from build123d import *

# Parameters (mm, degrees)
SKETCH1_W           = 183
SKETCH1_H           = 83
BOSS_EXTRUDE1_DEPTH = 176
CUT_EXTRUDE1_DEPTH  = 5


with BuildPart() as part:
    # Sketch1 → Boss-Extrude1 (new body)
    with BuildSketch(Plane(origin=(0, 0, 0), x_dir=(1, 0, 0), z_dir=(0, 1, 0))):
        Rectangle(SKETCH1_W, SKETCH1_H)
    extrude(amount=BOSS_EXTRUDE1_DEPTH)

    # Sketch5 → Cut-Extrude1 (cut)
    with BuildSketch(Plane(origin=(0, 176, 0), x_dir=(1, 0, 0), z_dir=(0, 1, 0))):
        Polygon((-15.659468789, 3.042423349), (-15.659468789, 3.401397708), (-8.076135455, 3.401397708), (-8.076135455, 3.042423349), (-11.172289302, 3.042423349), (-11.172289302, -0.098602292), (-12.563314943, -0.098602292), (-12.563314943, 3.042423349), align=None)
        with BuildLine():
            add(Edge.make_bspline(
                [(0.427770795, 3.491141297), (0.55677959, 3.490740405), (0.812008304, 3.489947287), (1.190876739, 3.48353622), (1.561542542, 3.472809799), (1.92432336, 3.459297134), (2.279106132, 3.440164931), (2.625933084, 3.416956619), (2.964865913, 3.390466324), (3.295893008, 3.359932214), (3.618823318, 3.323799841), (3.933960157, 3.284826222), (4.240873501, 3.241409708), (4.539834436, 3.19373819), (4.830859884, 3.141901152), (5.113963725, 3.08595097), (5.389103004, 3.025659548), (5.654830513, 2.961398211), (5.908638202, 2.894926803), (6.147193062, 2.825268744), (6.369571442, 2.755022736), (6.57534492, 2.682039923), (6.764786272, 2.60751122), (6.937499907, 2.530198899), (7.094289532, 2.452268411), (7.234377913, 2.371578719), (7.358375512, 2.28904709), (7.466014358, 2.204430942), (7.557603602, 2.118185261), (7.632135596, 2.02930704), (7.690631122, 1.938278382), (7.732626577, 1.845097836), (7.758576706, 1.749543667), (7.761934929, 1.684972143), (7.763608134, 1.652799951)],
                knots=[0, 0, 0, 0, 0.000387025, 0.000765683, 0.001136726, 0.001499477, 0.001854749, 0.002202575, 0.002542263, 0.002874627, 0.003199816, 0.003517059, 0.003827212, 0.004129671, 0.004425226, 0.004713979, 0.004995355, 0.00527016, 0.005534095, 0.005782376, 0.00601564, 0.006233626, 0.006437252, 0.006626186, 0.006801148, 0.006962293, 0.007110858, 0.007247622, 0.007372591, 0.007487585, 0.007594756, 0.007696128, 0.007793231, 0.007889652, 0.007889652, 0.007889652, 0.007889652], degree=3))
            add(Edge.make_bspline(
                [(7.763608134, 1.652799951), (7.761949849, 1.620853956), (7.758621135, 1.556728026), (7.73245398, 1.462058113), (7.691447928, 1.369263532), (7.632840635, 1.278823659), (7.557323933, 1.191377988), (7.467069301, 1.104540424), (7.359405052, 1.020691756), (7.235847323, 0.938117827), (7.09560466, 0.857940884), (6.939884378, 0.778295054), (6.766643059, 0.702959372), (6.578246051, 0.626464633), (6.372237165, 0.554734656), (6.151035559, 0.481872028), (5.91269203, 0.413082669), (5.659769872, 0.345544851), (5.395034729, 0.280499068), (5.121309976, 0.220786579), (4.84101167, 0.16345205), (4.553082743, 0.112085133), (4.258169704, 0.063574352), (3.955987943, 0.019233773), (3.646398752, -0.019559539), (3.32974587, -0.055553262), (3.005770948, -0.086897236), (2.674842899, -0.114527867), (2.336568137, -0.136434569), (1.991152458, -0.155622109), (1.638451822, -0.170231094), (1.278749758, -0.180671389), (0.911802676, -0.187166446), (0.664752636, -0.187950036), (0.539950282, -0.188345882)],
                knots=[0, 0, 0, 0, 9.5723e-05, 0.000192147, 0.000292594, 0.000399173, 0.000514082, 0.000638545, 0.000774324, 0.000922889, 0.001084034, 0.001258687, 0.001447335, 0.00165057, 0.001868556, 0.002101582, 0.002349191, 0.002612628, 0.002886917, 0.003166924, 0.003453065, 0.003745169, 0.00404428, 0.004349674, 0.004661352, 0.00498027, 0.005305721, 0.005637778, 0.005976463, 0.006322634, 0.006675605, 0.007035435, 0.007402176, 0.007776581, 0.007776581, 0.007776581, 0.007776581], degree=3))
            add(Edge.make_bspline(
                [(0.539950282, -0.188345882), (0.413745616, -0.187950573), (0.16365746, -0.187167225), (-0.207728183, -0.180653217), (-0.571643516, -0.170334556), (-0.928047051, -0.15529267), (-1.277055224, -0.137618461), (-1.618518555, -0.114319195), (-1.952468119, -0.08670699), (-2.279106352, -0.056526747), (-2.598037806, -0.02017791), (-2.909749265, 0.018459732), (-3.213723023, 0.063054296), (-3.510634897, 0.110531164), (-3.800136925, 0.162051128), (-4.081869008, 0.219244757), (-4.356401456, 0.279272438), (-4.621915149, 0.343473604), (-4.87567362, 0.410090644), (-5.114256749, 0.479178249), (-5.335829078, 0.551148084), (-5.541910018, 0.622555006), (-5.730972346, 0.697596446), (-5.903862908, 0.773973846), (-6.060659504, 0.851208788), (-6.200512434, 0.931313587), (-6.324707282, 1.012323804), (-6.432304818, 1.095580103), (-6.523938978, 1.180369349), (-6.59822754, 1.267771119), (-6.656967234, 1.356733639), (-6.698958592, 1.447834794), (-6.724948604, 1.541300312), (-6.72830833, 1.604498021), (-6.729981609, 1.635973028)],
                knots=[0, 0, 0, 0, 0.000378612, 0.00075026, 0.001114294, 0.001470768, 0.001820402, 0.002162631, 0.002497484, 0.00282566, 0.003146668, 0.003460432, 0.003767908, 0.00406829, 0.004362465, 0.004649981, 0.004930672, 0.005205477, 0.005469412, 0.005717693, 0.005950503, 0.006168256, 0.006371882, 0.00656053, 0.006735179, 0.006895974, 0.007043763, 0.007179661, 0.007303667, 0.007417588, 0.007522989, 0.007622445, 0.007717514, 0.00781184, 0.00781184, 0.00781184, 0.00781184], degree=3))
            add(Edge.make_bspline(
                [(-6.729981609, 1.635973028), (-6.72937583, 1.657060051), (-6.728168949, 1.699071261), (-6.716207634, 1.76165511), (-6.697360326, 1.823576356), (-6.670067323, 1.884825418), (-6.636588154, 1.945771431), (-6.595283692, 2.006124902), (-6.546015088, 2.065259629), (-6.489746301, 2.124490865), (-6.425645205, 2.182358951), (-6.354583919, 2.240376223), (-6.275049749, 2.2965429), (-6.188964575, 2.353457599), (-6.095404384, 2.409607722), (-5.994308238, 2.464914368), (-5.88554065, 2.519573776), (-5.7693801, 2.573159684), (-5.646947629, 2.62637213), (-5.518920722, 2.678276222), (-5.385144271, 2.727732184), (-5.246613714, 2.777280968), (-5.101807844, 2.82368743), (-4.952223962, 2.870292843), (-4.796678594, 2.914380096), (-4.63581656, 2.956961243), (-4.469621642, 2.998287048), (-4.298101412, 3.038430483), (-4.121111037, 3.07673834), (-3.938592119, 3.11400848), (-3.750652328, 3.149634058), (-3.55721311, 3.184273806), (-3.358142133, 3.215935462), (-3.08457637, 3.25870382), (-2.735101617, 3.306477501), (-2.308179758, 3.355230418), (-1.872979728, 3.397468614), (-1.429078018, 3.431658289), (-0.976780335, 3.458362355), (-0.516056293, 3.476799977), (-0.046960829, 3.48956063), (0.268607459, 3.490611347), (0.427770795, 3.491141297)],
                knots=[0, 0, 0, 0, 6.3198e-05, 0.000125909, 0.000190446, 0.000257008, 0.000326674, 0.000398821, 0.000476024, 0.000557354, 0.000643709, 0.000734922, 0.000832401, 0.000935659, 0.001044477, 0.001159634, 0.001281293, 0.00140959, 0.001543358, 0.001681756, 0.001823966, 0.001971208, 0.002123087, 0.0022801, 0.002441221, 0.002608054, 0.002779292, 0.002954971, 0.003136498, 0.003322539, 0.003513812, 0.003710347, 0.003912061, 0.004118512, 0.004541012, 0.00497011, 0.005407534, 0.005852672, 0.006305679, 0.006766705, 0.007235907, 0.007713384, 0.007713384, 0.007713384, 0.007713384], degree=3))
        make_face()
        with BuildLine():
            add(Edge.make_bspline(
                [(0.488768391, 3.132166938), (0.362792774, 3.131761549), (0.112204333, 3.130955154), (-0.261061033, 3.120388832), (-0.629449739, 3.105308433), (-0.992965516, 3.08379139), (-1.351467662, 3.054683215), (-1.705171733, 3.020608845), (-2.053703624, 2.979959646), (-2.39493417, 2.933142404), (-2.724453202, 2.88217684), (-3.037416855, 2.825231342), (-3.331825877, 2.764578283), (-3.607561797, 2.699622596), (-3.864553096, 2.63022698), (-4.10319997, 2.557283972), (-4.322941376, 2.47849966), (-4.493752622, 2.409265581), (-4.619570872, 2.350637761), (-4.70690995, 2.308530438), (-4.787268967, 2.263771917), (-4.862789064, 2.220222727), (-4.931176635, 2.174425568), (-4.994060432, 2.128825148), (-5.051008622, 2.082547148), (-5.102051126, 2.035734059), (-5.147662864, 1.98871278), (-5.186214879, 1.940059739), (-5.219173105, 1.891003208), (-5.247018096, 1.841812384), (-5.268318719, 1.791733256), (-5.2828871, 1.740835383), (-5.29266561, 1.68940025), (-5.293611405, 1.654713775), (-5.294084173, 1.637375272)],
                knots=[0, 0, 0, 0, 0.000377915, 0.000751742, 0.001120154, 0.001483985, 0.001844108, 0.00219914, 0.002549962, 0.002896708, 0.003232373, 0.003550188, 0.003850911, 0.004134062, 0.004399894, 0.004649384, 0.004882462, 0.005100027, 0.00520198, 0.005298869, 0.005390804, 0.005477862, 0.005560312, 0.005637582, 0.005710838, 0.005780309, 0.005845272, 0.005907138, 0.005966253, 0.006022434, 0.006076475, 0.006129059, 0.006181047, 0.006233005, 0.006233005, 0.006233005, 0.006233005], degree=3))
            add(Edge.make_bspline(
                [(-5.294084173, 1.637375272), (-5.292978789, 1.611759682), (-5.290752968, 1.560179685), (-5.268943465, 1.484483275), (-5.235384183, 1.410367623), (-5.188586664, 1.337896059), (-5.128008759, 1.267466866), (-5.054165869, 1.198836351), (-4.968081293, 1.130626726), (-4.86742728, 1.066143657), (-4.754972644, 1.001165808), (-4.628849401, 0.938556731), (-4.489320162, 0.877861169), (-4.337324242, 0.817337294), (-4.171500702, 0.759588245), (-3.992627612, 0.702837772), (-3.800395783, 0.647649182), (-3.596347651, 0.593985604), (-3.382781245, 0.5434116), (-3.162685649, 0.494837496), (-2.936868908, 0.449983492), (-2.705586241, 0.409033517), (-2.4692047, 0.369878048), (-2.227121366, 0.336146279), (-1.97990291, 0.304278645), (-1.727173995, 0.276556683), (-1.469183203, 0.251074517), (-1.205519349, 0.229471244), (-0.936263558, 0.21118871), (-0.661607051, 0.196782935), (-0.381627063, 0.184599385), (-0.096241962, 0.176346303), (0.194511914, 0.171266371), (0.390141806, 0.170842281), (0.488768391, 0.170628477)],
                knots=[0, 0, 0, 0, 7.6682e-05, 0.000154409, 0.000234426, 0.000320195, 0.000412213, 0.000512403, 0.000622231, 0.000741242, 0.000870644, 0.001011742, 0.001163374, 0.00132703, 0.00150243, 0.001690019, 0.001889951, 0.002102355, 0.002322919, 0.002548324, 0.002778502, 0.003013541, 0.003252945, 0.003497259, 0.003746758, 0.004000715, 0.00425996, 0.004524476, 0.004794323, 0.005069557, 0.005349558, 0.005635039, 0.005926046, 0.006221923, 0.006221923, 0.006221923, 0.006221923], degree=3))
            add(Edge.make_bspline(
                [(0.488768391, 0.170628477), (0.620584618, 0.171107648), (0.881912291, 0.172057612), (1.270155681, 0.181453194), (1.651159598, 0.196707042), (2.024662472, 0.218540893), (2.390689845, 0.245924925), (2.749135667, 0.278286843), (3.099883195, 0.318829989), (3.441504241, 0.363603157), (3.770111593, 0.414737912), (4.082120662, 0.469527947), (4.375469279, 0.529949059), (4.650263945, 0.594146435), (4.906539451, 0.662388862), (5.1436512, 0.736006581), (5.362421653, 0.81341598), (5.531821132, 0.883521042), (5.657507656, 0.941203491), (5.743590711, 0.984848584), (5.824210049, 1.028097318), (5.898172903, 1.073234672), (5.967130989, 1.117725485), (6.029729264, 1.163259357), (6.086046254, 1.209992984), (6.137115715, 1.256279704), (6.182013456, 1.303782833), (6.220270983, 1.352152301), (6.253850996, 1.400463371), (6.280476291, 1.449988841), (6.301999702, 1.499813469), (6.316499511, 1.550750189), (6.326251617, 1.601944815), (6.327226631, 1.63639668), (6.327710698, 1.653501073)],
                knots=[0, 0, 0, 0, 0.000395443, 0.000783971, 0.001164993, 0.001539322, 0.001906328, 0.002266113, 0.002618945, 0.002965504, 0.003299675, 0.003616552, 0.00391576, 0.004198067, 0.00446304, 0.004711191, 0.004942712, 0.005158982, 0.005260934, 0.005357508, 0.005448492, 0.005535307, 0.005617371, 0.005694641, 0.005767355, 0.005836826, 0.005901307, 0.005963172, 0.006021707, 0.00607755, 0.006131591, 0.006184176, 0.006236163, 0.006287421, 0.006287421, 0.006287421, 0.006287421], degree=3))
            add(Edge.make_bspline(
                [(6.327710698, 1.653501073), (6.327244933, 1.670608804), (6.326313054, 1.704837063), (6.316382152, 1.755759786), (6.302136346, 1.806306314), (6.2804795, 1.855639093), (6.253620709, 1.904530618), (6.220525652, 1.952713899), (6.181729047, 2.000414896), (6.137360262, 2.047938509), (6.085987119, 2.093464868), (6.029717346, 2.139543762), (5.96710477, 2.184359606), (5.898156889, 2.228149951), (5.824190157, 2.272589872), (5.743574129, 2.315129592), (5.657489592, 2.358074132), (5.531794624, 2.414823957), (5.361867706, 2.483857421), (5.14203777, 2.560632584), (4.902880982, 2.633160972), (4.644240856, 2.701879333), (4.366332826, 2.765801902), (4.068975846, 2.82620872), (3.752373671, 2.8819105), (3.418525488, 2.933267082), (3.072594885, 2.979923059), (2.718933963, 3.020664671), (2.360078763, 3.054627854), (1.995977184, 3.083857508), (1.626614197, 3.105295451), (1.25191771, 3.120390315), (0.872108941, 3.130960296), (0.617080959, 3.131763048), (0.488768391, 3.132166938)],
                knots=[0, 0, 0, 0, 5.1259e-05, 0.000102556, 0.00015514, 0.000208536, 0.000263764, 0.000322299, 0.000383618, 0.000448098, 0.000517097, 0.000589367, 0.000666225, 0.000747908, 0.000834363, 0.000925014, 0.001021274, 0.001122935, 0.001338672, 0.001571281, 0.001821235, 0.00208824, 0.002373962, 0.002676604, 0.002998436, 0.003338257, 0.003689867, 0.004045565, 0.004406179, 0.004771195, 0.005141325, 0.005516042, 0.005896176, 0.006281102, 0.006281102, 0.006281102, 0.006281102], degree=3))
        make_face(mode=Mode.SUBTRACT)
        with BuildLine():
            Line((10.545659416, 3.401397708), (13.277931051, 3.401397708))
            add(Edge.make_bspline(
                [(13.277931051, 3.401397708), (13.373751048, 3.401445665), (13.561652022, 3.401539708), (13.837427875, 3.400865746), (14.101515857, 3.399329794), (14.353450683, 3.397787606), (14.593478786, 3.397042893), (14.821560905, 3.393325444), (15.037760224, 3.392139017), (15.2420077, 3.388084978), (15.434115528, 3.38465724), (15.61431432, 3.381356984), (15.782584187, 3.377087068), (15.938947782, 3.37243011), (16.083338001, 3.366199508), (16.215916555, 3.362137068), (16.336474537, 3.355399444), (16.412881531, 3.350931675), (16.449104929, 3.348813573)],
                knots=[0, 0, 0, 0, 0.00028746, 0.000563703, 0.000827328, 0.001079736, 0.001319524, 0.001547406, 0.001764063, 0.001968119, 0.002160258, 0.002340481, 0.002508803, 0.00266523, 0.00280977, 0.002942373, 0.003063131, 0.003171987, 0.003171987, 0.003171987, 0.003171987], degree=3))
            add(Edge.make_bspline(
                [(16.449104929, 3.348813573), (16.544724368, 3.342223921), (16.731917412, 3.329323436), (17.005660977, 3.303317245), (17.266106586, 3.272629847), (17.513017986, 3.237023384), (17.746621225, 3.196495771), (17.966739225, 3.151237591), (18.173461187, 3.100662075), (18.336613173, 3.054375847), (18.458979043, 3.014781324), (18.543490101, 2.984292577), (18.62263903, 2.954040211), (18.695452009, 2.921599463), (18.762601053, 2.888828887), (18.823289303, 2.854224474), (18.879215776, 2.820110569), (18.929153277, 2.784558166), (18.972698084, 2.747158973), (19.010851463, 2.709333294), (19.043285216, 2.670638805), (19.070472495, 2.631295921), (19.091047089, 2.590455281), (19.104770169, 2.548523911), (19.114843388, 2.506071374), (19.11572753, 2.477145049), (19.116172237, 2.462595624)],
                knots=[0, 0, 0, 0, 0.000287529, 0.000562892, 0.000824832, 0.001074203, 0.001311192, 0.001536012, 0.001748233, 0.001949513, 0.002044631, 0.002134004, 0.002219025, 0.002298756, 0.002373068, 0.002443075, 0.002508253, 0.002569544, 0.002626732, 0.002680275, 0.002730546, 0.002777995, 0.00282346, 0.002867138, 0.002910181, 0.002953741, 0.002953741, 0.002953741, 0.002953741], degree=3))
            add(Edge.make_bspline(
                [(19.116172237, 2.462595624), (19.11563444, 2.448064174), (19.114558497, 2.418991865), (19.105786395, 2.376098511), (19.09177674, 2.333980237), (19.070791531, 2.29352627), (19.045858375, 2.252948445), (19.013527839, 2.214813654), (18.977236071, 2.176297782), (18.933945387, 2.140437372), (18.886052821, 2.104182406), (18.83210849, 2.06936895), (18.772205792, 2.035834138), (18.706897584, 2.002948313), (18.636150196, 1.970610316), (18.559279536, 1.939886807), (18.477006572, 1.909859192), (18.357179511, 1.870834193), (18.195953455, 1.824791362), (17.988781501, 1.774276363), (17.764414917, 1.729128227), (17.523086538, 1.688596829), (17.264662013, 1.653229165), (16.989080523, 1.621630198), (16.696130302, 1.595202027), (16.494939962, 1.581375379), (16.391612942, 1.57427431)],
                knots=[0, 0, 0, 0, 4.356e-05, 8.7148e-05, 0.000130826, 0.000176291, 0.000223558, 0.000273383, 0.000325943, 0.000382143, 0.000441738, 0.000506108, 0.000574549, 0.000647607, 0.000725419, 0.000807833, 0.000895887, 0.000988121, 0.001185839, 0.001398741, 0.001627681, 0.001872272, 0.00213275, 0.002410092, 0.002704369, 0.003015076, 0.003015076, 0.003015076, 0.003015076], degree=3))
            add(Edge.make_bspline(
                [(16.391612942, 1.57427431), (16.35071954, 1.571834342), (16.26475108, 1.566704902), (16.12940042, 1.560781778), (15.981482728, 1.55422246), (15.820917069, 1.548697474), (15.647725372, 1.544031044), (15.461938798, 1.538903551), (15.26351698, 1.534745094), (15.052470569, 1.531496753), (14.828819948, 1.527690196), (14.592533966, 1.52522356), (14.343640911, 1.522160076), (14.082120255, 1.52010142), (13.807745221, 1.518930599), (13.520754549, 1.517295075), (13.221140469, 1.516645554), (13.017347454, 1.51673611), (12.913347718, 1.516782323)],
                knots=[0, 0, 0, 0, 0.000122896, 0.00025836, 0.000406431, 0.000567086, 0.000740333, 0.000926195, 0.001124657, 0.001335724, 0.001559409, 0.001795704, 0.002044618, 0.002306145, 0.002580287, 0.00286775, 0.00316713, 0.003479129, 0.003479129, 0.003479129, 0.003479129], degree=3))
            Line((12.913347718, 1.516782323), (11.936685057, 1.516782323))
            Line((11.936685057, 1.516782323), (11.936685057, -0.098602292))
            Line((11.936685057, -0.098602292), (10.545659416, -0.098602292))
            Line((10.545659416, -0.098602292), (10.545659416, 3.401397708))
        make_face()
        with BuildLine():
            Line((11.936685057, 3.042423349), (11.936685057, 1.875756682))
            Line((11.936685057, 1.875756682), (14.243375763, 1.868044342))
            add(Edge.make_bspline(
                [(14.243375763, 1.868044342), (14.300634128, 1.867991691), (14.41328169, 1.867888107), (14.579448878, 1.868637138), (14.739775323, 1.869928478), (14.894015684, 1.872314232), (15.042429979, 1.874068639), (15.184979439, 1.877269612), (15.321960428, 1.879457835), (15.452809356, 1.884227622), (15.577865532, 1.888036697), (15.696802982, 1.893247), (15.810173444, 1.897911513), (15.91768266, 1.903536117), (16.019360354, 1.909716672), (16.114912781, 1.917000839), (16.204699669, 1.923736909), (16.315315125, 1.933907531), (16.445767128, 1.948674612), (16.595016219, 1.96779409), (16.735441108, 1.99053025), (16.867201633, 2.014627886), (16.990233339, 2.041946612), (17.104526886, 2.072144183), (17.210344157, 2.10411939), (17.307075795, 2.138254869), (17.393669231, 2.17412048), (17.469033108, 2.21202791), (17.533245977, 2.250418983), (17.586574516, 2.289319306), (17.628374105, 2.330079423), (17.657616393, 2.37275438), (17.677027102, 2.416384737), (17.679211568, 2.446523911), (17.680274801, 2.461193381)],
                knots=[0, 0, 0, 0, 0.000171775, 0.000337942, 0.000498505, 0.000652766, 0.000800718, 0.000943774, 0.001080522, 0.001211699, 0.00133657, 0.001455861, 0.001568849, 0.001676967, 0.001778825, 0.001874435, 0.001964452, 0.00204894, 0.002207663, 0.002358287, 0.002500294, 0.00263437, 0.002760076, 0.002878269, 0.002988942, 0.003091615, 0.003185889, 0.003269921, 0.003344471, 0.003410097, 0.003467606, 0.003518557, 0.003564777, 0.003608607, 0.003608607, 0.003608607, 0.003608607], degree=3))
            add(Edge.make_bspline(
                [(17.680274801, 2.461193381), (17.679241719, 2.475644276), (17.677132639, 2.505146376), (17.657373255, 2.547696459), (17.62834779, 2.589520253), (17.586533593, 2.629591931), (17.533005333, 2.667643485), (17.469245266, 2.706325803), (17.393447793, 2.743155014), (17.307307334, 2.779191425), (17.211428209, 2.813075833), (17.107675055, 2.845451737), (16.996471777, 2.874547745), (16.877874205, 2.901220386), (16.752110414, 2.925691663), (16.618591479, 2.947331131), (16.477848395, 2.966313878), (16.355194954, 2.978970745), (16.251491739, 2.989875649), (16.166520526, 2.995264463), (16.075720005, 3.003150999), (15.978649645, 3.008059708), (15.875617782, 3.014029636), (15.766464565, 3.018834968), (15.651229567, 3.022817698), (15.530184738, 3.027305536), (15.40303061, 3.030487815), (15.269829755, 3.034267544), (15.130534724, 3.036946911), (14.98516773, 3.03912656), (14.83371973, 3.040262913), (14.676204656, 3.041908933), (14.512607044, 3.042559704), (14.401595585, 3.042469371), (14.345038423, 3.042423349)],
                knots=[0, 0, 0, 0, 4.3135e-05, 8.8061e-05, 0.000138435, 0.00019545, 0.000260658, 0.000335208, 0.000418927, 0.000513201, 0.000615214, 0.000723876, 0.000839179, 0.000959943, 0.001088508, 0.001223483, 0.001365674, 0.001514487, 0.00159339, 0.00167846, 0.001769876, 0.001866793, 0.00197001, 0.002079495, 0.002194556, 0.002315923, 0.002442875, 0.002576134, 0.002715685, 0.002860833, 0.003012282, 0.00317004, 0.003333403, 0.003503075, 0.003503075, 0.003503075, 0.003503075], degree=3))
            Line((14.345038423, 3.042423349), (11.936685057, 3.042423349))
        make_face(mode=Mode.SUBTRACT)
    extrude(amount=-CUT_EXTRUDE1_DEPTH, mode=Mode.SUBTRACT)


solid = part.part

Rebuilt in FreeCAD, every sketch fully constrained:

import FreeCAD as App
import Part
import Sketcher
from FreeCAD import Vector
Q = App.Units.Quantity


def add_polygon(sketch, points):
    """Adds a closed chain of lines whose ends are joined by coincident constraints."""
    first, n = sketch.GeometryCount, len(points)
    for a, b in zip(points, points[1:] + points[:1]):
        sketch.addGeometry(Part.LineSegment(App.Vector(*a, 0), App.Vector(*b, 0)), False)
    for i in range(n):
        sketch.addConstraint(Sketcher.Constraint("Coincident", first + i, 2, first + (i + 1) % n, 1))

doc = App.newDocument("Part")
body = doc.addObject("PartDesign::Body", "Body")

# Sketch on XZ plane
sketch1 = doc.addObject("Sketcher::SketchObject", "Sketch")
body.addObject(sketch1)
sketch1.AttachmentSupport = (doc.XZ_Plane, [""])
sketch1.MapMode = "FlatFace"
add_polygon(sketch1, [(-92, -42), (-92, 42), (92, 42), (92, -42)])  # lines 0-3
sketch1.addConstraint([
    Sketcher.Constraint("Vertical", 0),
    Sketcher.Constraint("Horizontal", 1),
    Sketcher.Constraint("Vertical", 2),
    Sketcher.Constraint("Horizontal", 3),
    Sketcher.Constraint("Symmetric", 0, 2, 2, 2, -1, 1),
    Sketcher.Constraint("DistanceX", 1, 1, 1, 2, Q("183 mm")),
    Sketcher.Constraint("DistanceY", 0, 1, 0, 2, Q("83 mm")),
])
pad1 = doc.addObject("PartDesign::Pad", "Pad")
body.addObject(pad1)
pad1.Profile = sketch1
pad1.Length = 176
pad1.Reversed = True

# Sketch on XZ plane
sketch2 = doc.addObject("Sketcher::SketchObject", "Sketch001")
body.addObject(sketch2)
sketch2.AttachmentSupport = (doc.XZ_Plane, [""])
sketch2.MapMode = "FlatFace"
sketch2.AttachmentOffset = App.Placement(Vector(0, 0, -176), App.Rotation())
add_polygon(sketch2, [(-15.659469, -3.401398), (-15.659469, -3.042423), (-12.563315, -3.042423), (-12.563315, 0.098602), (-11.172289, 0.098602), (-11.172289, -3.042423), (-8.076135, -3.042423), (-8.076135, -3.401398)])  # lines 0-7
sketch2.addGeometry(Part.BSplineCurve([Vector(0.427771, -3.491141, 0), Vector(0.55678, -3.49074, 0), Vector(0.812008, -3.489947, 0), Vector(1.190877, -3.483536, 0), Vector(1.561543, -3.47281, 0), Vector(1.924323, -3.459297, 0), Vector(2.279106, -3.440165, 0), Vector(2.625933, -3.416957, 0), Vector(2.964866, -3.390466, 0), Vector(3.295893, -3.359932, 0), Vector(3.618823, -3.3238, 0), Vector(3.93396, -3.284826, 0), Vector(4.240874, -3.24141, 0), Vector(4.539834, -3.193738, 0), Vector(4.83086, -3.141901, 0), Vector(5.113964, -3.085951, 0), Vector(5.389103, -3.02566, 0), Vector(5.654831, -2.961398, 0), Vector(5.908638, -2.894927, 0), Vector(6.147193, -2.825269, 0), Vector(6.369571, -2.755023, 0), Vector(6.575345, -2.68204, 0), Vector(6.764786, -2.607511, 0), Vector(6.9375, -2.530199, 0), Vector(7.09429, -2.452268, 0), Vector(7.234378, -2.371579, 0), Vector(7.358376, -2.289047, 0), Vector(7.466014, -2.204431, 0), Vector(7.557604, -2.118185, 0), Vector(7.632136, -2.029307, 0), Vector(7.690631, -1.938278, 0), Vector(7.732627, -1.845098, 0), Vector(7.758577, -1.749544, 0), Vector(7.761935, -1.684972, 0), Vector(7.763608, -1.6528, 0)], [4, 1, 1, 1, 1, 1, 1, 1, 1, 1, 1, 1, 1, 1, 1, 1, 1, 1, 1, 1, 1, 1, 1, 1, 1, 1, 1, 1, 1, 1, 1, 1, 4], [0, 0.000387025, 0.000765683, 0.001136726, 0.001499477, 0.001854749, 0.002202575, 0.002542263, 0.002874627, 0.003199816, 0.003517059, 0.003827212, 0.004129671, 0.004425226, 0.004713979, 0.004995355, 0.00527016, 0.005534095, 0.005782376, 0.00601564, 0.006233626, 0.006437252, 0.006626186, 0.006801148, 0.006962293, 0.007110858, 0.007247622, 0.007372591, 0.007487585, 0.007594756, 0.007696128, 0.007793231, 0.007889652], False, 3, [1, 1, 1, 1, 1, 1, 1, 1, 1, 1, 1, 1, 1, 1, 1, 1, 1, 1, 1, 1, 1, 1, 1, 1, 1, 1, 1, 1, 1, 1, 1, 1, 1, 1, 1], False), False)  # 8
sketch2.addGeometry(Part.BSplineCurve([Vector(-6.729982, -1.635973, 0), Vector(-6.729376, -1.65706, 0), Vector(-6.728169, -1.699071, 0), Vector(-6.716208, -1.761655, 0), Vector(-6.69736, -1.823576, 0), Vector(-6.670067, -1.884825, 0), Vector(-6.636588, -1.945771, 0), Vector(-6.595284, -2.006125, 0), Vector(-6.546015, -2.06526, 0), Vector(-6.489746, -2.124491, 0), Vector(-6.425645, -2.182359, 0), Vector(-6.354584, -2.240376, 0), Vector(-6.27505, -2.296543, 0), Vector(-6.188965, -2.353458, 0), Vector(-6.095404, -2.409608, 0), Vector(-5.994308, -2.464914, 0), Vector(-5.885541, -2.519574, 0), Vector(-5.76938, -2.57316, 0), Vector(-5.646948, -2.626372, 0), Vector(-5.518921, -2.678276, 0), Vector(-5.385144, -2.727732, 0), Vector(-5.246614, -2.777281, 0), Vector(-5.101808, -2.823687, 0), Vector(-4.952224, -2.870293, 0), Vector(-4.796679, -2.91438, 0), Vector(-4.635817, -2.956961, 0), Vector(-4.469622, -2.998287, 0), Vector(-4.298101, -3.03843, 0), Vector(-4.121111, -3.076738, 0), Vector(-3.938592, -3.114008, 0), Vector(-3.750652, -3.149634, 0), Vector(-3.557213, -3.184274, 0), Vector(-3.358142, -3.215935, 0), Vector(-3.084576, -3.258704, 0), Vector(-2.735102, -3.306478, 0), Vector(-2.30818, -3.35523, 0), Vector(-1.87298, -3.397469, 0), Vector(-1.429078, -3.431658, 0), Vector(-0.97678, -3.458362, 0), Vector(-0.516056, -3.4768, 0), Vector(-0.046961, -3.489561, 0), Vector(0.268607, -3.490611, 0), Vector(0.427771, -3.491141, 0)], [4, 1, 1, 1, 1, 1, 1, 1, 1, 1, 1, 1, 1, 1, 1, 1, 1, 1, 1, 1, 1, 1, 1, 1, 1, 1, 1, 1, 1, 1, 1, 1, 1, 1, 1, 1, 1, 1, 1, 1, 4], [0, 0.000063198, 0.000125909, 0.000190446, 0.000257008, 0.000326674, 0.000398821, 0.000476024, 0.000557354, 0.000643709, 0.000734922, 0.000832401, 0.000935659, 0.001044477, 0.001159634, 0.001281293, 0.00140959, 0.001543358, 0.001681756, 0.001823966, 0.001971208, 0.002123087, 0.0022801, 0.002441221, 0.002608054, 0.002779292, 0.002954971, 0.003136498, 0.003322539, 0.003513812, 0.003710347, 0.003912061, 0.004118512, 0.004541012, 0.00497011, 0.005407534, 0.005852672, 0.006305679, 0.006766705, 0.007235907, 0.007713384], False, 3, [1, 1, 1, 1, 1, 1, 1, 1, 1, 1, 1, 1, 1, 1, 1, 1, 1, 1, 1, 1, 1, 1, 1, 1, 1, 1, 1, 1, 1, 1, 1, 1, 1, 1, 1, 1, 1, 1, 1, 1, 1, 1, 1], False), False)  # 9
sketch2.addGeometry(Part.BSplineCurve([Vector(0.53995, 0.188346, 0), Vector(0.413746, 0.187951, 0), Vector(0.163657, 0.187167, 0), Vector(-0.207728, 0.180653, 0), Vector(-0.571644, 0.170335, 0), Vector(-0.928047, 0.155293, 0), Vector(-1.277055, 0.137618, 0), Vector(-1.618519, 0.114319, 0), Vector(-1.952468, 0.086707, 0), Vector(-2.279106, 0.056527, 0), Vector(-2.598038, 0.020178, 0), Vector(-2.909749, -0.01846, 0), Vector(-3.213723, -0.063054, 0), Vector(-3.510635, -0.110531, 0), Vector(-3.800137, -0.162051, 0), Vector(-4.081869, -0.219245, 0), Vector(-4.356401, -0.279272, 0), Vector(-4.621915, -0.343474, 0), Vector(-4.875674, -0.410091, 0), Vector(-5.114257, -0.479178, 0), Vector(-5.335829, -0.551148, 0), Vector(-5.54191, -0.622555, 0), Vector(-5.730972, -0.697596, 0), Vector(-5.903863, -0.773974, 0), Vector(-6.06066, -0.851209, 0), Vector(-6.200512, -0.931314, 0), Vector(-6.324707, -1.012324, 0), Vector(-6.432305, -1.09558, 0), Vector(-6.523939, -1.180369, 0), Vector(-6.598228, -1.267771, 0), Vector(-6.656967, -1.356734, 0), Vector(-6.698959, -1.447835, 0), Vector(-6.724949, -1.5413, 0), Vector(-6.728308, -1.604498, 0), Vector(-6.729982, -1.635973, 0)], [4, 1, 1, 1, 1, 1, 1, 1, 1, 1, 1, 1, 1, 1, 1, 1, 1, 1, 1, 1, 1, 1, 1, 1, 1, 1, 1, 1, 1, 1, 1, 1, 4], [0, 0.000378612, 0.00075026, 0.001114294, 0.001470768, 0.001820402, 0.002162631, 0.002497484, 0.00282566, 0.003146668, 0.003460432, 0.003767908, 0.00406829, 0.004362465, 0.004649981, 0.004930672, 0.005205477, 0.005469412, 0.005717693, 0.005950503, 0.006168256, 0.006371882, 0.00656053, 0.006735179, 0.006895974, 0.007043763, 0.007179661, 0.007303667, 0.007417588, 0.007522989, 0.007622445, 0.007717514, 0.00781184], False, 3, [1, 1, 1, 1, 1, 1, 1, 1, 1, 1, 1, 1, 1, 1, 1, 1, 1, 1, 1, 1, 1, 1, 1, 1, 1, 1, 1, 1, 1, 1, 1, 1, 1, 1, 1], False), False)  # 10
sketch2.addGeometry(Part.BSplineCurve([Vector(7.763608, -1.6528, 0), Vector(7.76195, -1.620854, 0), Vector(7.758621, -1.556728, 0), Vector(7.732454, -1.462058, 0), Vector(7.691448, -1.369264, 0), Vector(7.632841, -1.278824, 0), Vector(7.557324, -1.191378, 0), Vector(7.467069, -1.10454, 0), Vector(7.359405, -1.020692, 0), Vector(7.235847, -0.938118, 0), Vector(7.095605, -0.857941, 0), Vector(6.939884, -0.778295, 0), Vector(6.766643, -0.702959, 0), Vector(6.578246, -0.626465, 0), Vector(6.372237, -0.554735, 0), Vector(6.151036, -0.481872, 0), Vector(5.912692, -0.413083, 0), Vector(5.65977, -0.345545, 0), Vector(5.395035, -0.280499, 0), Vector(5.12131, -0.220787, 0), Vector(4.841012, -0.163452, 0), Vector(4.553083, -0.112085, 0), Vector(4.25817, -0.063574, 0), Vector(3.955988, -0.019234, 0), Vector(3.646399, 0.01956, 0), Vector(3.329746, 0.055553, 0), Vector(3.005771, 0.086897, 0), Vector(2.674843, 0.114528, 0), Vector(2.336568, 0.136435, 0), Vector(1.991152, 0.155622, 0), Vector(1.638452, 0.170231, 0), Vector(1.27875, 0.180671, 0), Vector(0.911803, 0.187166, 0), Vector(0.664753, 0.18795, 0), Vector(0.53995, 0.188346, 0)], [4, 1, 1, 1, 1, 1, 1, 1, 1, 1, 1, 1, 1, 1, 1, 1, 1, 1, 1, 1, 1, 1, 1, 1, 1, 1, 1, 1, 1, 1, 1, 1, 4], [0, 0.000095723, 0.000192147, 0.000292594, 0.000399173, 0.000514082, 0.000638545, 0.000774324, 0.000922889, 0.001084034, 0.001258687, 0.001447335, 0.00165057, 0.001868556, 0.002101582, 0.002349191, 0.002612628, 0.002886917, 0.003166924, 0.003453065, 0.003745169, 0.00404428, 0.004349674, 0.004661352, 0.00498027, 0.005305721, 0.005637778, 0.005976463, 0.006322634, 0.006675605, 0.007035435, 0.007402176, 0.007776581], False, 3, [1, 1, 1, 1, 1, 1, 1, 1, 1, 1, 1, 1, 1, 1, 1, 1, 1, 1, 1, 1, 1, 1, 1, 1, 1, 1, 1, 1, 1, 1, 1, 1, 1, 1, 1], False), False)  # 11
sketch2.addGeometry(Part.BSplineCurve([Vector(6.327711, -1.653501, 0), Vector(6.327245, -1.670609, 0), Vector(6.326313, -1.704837, 0), Vector(6.316382, -1.75576, 0), Vector(6.302136, -1.806306, 0), Vector(6.28048, -1.855639, 0), Vector(6.253621, -1.904531, 0), Vector(6.220526, -1.952714, 0), Vector(6.181729, -2.000415, 0), Vector(6.13736, -2.047939, 0), Vector(6.085987, -2.093465, 0), Vector(6.029717, -2.139544, 0), Vector(5.967105, -2.18436, 0), Vector(5.898157, -2.22815, 0), Vector(5.82419, -2.27259, 0), Vector(5.743574, -2.31513, 0), Vector(5.65749, -2.358074, 0), Vector(5.531795, -2.414824, 0), Vector(5.361868, -2.483857, 0), Vector(5.142038, -2.560633, 0), Vector(4.902881, -2.633161, 0), Vector(4.644241, -2.701879, 0), Vector(4.366333, -2.765802, 0), Vector(4.068976, -2.826209, 0), Vector(3.752374, -2.881911, 0), Vector(3.418525, -2.933267, 0), Vector(3.072595, -2.979923, 0), Vector(2.718934, -3.020665, 0), Vector(2.360079, -3.054628, 0), Vector(1.995977, -3.083858, 0), Vector(1.626614, -3.105295, 0), Vector(1.251918, -3.12039, 0), Vector(0.872109, -3.13096, 0), Vector(0.617081, -3.131763, 0), Vector(0.488768, -3.132167, 0)], [4, 1, 1, 1, 1, 1, 1, 1, 1, 1, 1, 1, 1, 1, 1, 1, 1, 1, 1, 1, 1, 1, 1, 1, 1, 1, 1, 1, 1, 1, 1, 1, 4], [0, 0.000051259, 0.000102556, 0.00015514, 0.000208536, 0.000263764, 0.000322299, 0.000383618, 0.000448098, 0.000517097, 0.000589367, 0.000666225, 0.000747908, 0.000834363, 0.000925014, 0.001021274, 0.001122935, 0.001338672, 0.001571281, 0.001821235, 0.00208824, 0.002373962, 0.002676604, 0.002998436, 0.003338257, 0.003689867, 0.004045565, 0.004406179, 0.004771195, 0.005141325, 0.005516042, 0.005896176, 0.006281102], False, 3, [1, 1, 1, 1, 1, 1, 1, 1, 1, 1, 1, 1, 1, 1, 1, 1, 1, 1, 1, 1, 1, 1, 1, 1, 1, 1, 1, 1, 1, 1, 1, 1, 1, 1, 1], False), False)  # 12
sketch2.addGeometry(Part.BSplineCurve([Vector(0.488768, -0.170628, 0), Vector(0.620585, -0.171108, 0), Vector(0.881912, -0.172058, 0), Vector(1.270156, -0.181453, 0), Vector(1.65116, -0.196707, 0), Vector(2.024662, -0.218541, 0), Vector(2.39069, -0.245925, 0), Vector(2.749136, -0.278287, 0), Vector(3.099883, -0.31883, 0), Vector(3.441504, -0.363603, 0), Vector(3.770112, -0.414738, 0), Vector(4.082121, -0.469528, 0), Vector(4.375469, -0.529949, 0), Vector(4.650264, -0.594146, 0), Vector(4.906539, -0.662389, 0), Vector(5.143651, -0.736007, 0), Vector(5.362422, -0.813416, 0), Vector(5.531821, -0.883521, 0), Vector(5.657508, -0.941203, 0), Vector(5.743591, -0.984849, 0), Vector(5.82421, -1.028097, 0), Vector(5.898173, -1.073235, 0), Vector(5.967131, -1.117725, 0), Vector(6.029729, -1.163259, 0), Vector(6.086046, -1.209993, 0), Vector(6.137116, -1.25628, 0), Vector(6.182013, -1.303783, 0), Vector(6.220271, -1.352152, 0), Vector(6.253851, -1.400463, 0), Vector(6.280476, -1.449989, 0), Vector(6.302, -1.499813, 0), Vector(6.3165, -1.55075, 0), Vector(6.326252, -1.601945, 0), Vector(6.327227, -1.636397, 0), Vector(6.327711, -1.653501, 0)], [4, 1, 1, 1, 1, 1, 1, 1, 1, 1, 1, 1, 1, 1, 1, 1, 1, 1, 1, 1, 1, 1, 1, 1, 1, 1, 1, 1, 1, 1, 1, 1, 4], [0, 0.000395443, 0.000783971, 0.001164993, 0.001539322, 0.001906328, 0.002266113, 0.002618945, 0.002965504, 0.003299675, 0.003616552, 0.00391576, 0.004198067, 0.00446304, 0.004711191, 0.004942712, 0.005158982, 0.005260934, 0.005357508, 0.005448492, 0.005535307, 0.005617371, 0.005694641, 0.005767355, 0.005836826, 0.005901307, 0.005963172, 0.006021707, 0.00607755, 0.006131591, 0.006184176, 0.006236163, 0.006287421], False, 3, [1, 1, 1, 1, 1, 1, 1, 1, 1, 1, 1, 1, 1, 1, 1, 1, 1, 1, 1, 1, 1, 1, 1, 1, 1, 1, 1, 1, 1, 1, 1, 1, 1, 1, 1], False), False)  # 13
sketch2.addGeometry(Part.BSplineCurve([Vector(-5.294084, -1.637375, 0), Vector(-5.292979, -1.61176, 0), Vector(-5.290753, -1.56018, 0), Vector(-5.268943, -1.484483, 0), Vector(-5.235384, -1.410368, 0), Vector(-5.188587, -1.337896, 0), Vector(-5.128009, -1.267467, 0), Vector(-5.054166, -1.198836, 0), Vector(-4.968081, -1.130627, 0), Vector(-4.867427, -1.066144, 0), Vector(-4.754973, -1.001166, 0), Vector(-4.628849, -0.938557, 0), Vector(-4.48932, -0.877861, 0), Vector(-4.337324, -0.817337, 0), Vector(-4.171501, -0.759588, 0), Vector(-3.992628, -0.702838, 0), Vector(-3.800396, -0.647649, 0), Vector(-3.596348, -0.593986, 0), Vector(-3.382781, -0.543412, 0), Vector(-3.162686, -0.494837, 0), Vector(-2.936869, -0.449983, 0), Vector(-2.705586, -0.409034, 0), Vector(-2.469205, -0.369878, 0), Vector(-2.227121, -0.336146, 0), Vector(-1.979903, -0.304279, 0), Vector(-1.727174, -0.276557, 0), Vector(-1.469183, -0.251075, 0), Vector(-1.205519, -0.229471, 0), Vector(-0.936264, -0.211189, 0), Vector(-0.661607, -0.196783, 0), Vector(-0.381627, -0.184599, 0), Vector(-0.096242, -0.176346, 0), Vector(0.194512, -0.171266, 0), Vector(0.390142, -0.170842, 0), Vector(0.488768, -0.170628, 0)], [4, 1, 1, 1, 1, 1, 1, 1, 1, 1, 1, 1, 1, 1, 1, 1, 1, 1, 1, 1, 1, 1, 1, 1, 1, 1, 1, 1, 1, 1, 1, 1, 4], [0, 0.000076682, 0.000154409, 0.000234426, 0.000320195, 0.000412213, 0.000512403, 0.000622231, 0.000741242, 0.000870644, 0.001011742, 0.001163374, 0.00132703, 0.00150243, 0.001690019, 0.001889951, 0.002102355, 0.002322919, 0.002548324, 0.002778502, 0.003013541, 0.003252945, 0.003497259, 0.003746758, 0.004000715, 0.00425996, 0.004524476, 0.004794323, 0.005069557, 0.005349558, 0.005635039, 0.005926046, 0.006221923], False, 3, [1, 1, 1, 1, 1, 1, 1, 1, 1, 1, 1, 1, 1, 1, 1, 1, 1, 1, 1, 1, 1, 1, 1, 1, 1, 1, 1, 1, 1, 1, 1, 1, 1, 1, 1], False), False)  # 14
sketch2.addGeometry(Part.BSplineCurve([Vector(0.488768, -3.132167, 0), Vector(0.362793, -3.131762, 0), Vector(0.112204, -3.130955, 0), Vector(-0.261061, -3.120389, 0), Vector(-0.62945, -3.105308, 0), Vector(-0.992966, -3.083791, 0), Vector(-1.351468, -3.054683, 0), Vector(-1.705172, -3.020609, 0), Vector(-2.053704, -2.97996, 0), Vector(-2.394934, -2.933142, 0), Vector(-2.724453, -2.882177, 0), Vector(-3.037417, -2.825231, 0), Vector(-3.331826, -2.764578, 0), Vector(-3.607562, -2.699623, 0), Vector(-3.864553, -2.630227, 0), Vector(-4.1032, -2.557284, 0), Vector(-4.322941, -2.4785, 0), Vector(-4.493753, -2.409266, 0), Vector(-4.619571, -2.350638, 0), Vector(-4.70691, -2.30853, 0), Vector(-4.787269, -2.263772, 0), Vector(-4.862789, -2.220223, 0), Vector(-4.931177, -2.174426, 0), Vector(-4.99406, -2.128825, 0), Vector(-5.051009, -2.082547, 0), Vector(-5.102051, -2.035734, 0), Vector(-5.147663, -1.988713, 0), Vector(-5.186215, -1.94006, 0), Vector(-5.219173, -1.891003, 0), Vector(-5.247018, -1.841812, 0), Vector(-5.268319, -1.791733, 0), Vector(-5.282887, -1.740835, 0), Vector(-5.292666, -1.6894, 0), Vector(-5.293611, -1.654714, 0), Vector(-5.294084, -1.637375, 0)], [4, 1, 1, 1, 1, 1, 1, 1, 1, 1, 1, 1, 1, 1, 1, 1, 1, 1, 1, 1, 1, 1, 1, 1, 1, 1, 1, 1, 1, 1, 1, 1, 4], [0, 0.000377915, 0.000751742, 0.001120154, 0.001483985, 0.001844108, 0.00219914, 0.002549962, 0.002896708, 0.003232373, 0.003550188, 0.003850911, 0.004134062, 0.004399894, 0.004649384, 0.004882462, 0.005100027, 0.00520198, 0.005298869, 0.005390804, 0.005477862, 0.005560312, 0.005637582, 0.005710838, 0.005780309, 0.005845272, 0.005907138, 0.005966253, 0.006022434, 0.006076475, 0.006129059, 0.006181047, 0.006233005], False, 3, [1, 1, 1, 1, 1, 1, 1, 1, 1, 1, 1, 1, 1, 1, 1, 1, 1, 1, 1, 1, 1, 1, 1, 1, 1, 1, 1, 1, 1, 1, 1, 1, 1, 1, 1], False), False)  # 15
sketch2.addGeometry(Part.LineSegment(Vector(13.277931, -3.401398, 0), Vector(10.545659, -3.401398, 0)), False)  # 16
sketch2.addGeometry(Part.LineSegment(Vector(10.545659, -3.401398, 0), Vector(10.545659, 0.098602, 0)), False)  # 17
sketch2.addGeometry(Part.LineSegment(Vector(10.545659, 0.098602, 0), Vector(11.936685, 0.098602, 0)), False)  # 18
sketch2.addGeometry(Part.LineSegment(Vector(11.936685, 0.098602, 0), Vector(11.936685, -1.516782, 0)), False)  # 19
sketch2.addGeometry(Part.LineSegment(Vector(11.936685, -1.516782, 0), Vector(12.913348, -1.516782, 0)), False)  # 20
sketch2.addGeometry(Part.BSplineCurve([Vector(16.391613, -1.574274, 0), Vector(16.35072, -1.571834, 0), Vector(16.264751, -1.566705, 0), Vector(16.1294, -1.560782, 0), Vector(15.981483, -1.554222, 0), Vector(15.820917, -1.548697, 0), Vector(15.647725, -1.544031, 0), Vector(15.461939, -1.538904, 0), Vector(15.263517, -1.534745, 0), Vector(15.052471, -1.531497, 0), Vector(14.82882, -1.52769, 0), Vector(14.592534, -1.525224, 0), Vector(14.343641, -1.52216, 0), Vector(14.08212, -1.520101, 0), Vector(13.807745, -1.518931, 0), Vector(13.520755, -1.517295, 0), Vector(13.22114, -1.516646, 0), Vector(13.017347, -1.516736, 0), Vector(12.913348, -1.516782, 0)], [4, 1, 1, 1, 1, 1, 1, 1, 1, 1, 1, 1, 1, 1, 1, 1, 4], [0, 0.000122896, 0.00025836, 0.000406431, 0.000567086, 0.000740333, 0.000926195, 0.001124657, 0.001335724, 0.001559409, 0.001795704, 0.002044618, 0.002306145, 0.002580287, 0.00286775, 0.00316713, 0.003479129], False, 3, [1, 1, 1, 1, 1, 1, 1, 1, 1, 1, 1, 1, 1, 1, 1, 1, 1, 1, 1], False), False)  # 21
sketch2.addGeometry(Part.BSplineCurve([Vector(19.116172, -2.462596, 0), Vector(19.115634, -2.448064, 0), Vector(19.114558, -2.418992, 0), Vector(19.105786, -2.376099, 0), Vector(19.091777, -2.33398, 0), Vector(19.070792, -2.293526, 0), Vector(19.045858, -2.252948, 0), Vector(19.013528, -2.214814, 0), Vector(18.977236, -2.176298, 0), Vector(18.933945, -2.140437, 0), Vector(18.886053, -2.104182, 0), Vector(18.832108, -2.069369, 0), Vector(18.772206, -2.035834, 0), Vector(18.706898, -2.002948, 0), Vector(18.63615, -1.97061, 0), Vector(18.55928, -1.939887, 0), Vector(18.477007, -1.909859, 0), Vector(18.35718, -1.870834, 0), Vector(18.195953, -1.824791, 0), Vector(17.988782, -1.774276, 0), Vector(17.764415, -1.729128, 0), Vector(17.523087, -1.688597, 0), Vector(17.264662, -1.653229, 0), Vector(16.989081, -1.62163, 0), Vector(16.69613, -1.595202, 0), Vector(16.49494, -1.581375, 0), Vector(16.391613, -1.574274, 0)], [4, 1, 1, 1, 1, 1, 1, 1, 1, 1, 1, 1, 1, 1, 1, 1, 1, 1, 1, 1, 1, 1, 1, 1, 4], [0, 0.00004356, 0.000087148, 0.000130826, 0.000176291, 0.000223558, 0.000273383, 0.000325943, 0.000382143, 0.000441738, 0.000506108, 0.000574549, 0.000647607, 0.000725419, 0.000807833, 0.000895887, 0.000988121, 0.001185839, 0.001398741, 0.001627681, 0.001872272, 0.00213275, 0.002410092, 0.002704369, 0.003015076], False, 3, [1, 1, 1, 1, 1, 1, 1, 1, 1, 1, 1, 1, 1, 1, 1, 1, 1, 1, 1, 1, 1, 1, 1, 1, 1, 1, 1], False), False)  # 22
sketch2.addGeometry(Part.BSplineCurve([Vector(16.449105, -3.348814, 0), Vector(16.544724, -3.342224, 0), Vector(16.731917, -3.329323, 0), Vector(17.005661, -3.303317, 0), Vector(17.266107, -3.27263, 0), Vector(17.513018, -3.237023, 0), Vector(17.746621, -3.196496, 0), Vector(17.966739, -3.151238, 0), Vector(18.173461, -3.100662, 0), Vector(18.336613, -3.054376, 0), Vector(18.458979, -3.014781, 0), Vector(18.54349, -2.984293, 0), Vector(18.622639, -2.95404, 0), Vector(18.695452, -2.921599, 0), Vector(18.762601, -2.888829, 0), Vector(18.823289, -2.854224, 0), Vector(18.879216, -2.820111, 0), Vector(18.929153, -2.784558, 0), Vector(18.972698, -2.747159, 0), Vector(19.010851, -2.709333, 0), Vector(19.043285, -2.670639, 0), Vector(19.070472, -2.631296, 0), Vector(19.091047, -2.590455, 0), Vector(19.10477, -2.548524, 0), Vector(19.114843, -2.506071, 0), Vector(19.115728, -2.477145, 0), Vector(19.116172, -2.462596, 0)], [4, 1, 1, 1, 1, 1, 1, 1, 1, 1, 1, 1, 1, 1, 1, 1, 1, 1, 1, 1, 1, 1, 1, 1, 4], [0, 0.000287529, 0.000562892, 0.000824832, 0.001074203, 0.001311192, 0.001536012, 0.001748233, 0.001949513, 0.002044631, 0.002134004, 0.002219025, 0.002298756, 0.002373068, 0.002443075, 0.002508253, 0.002569544, 0.002626732, 0.002680275, 0.002730546, 0.002777995, 0.00282346, 0.002867138, 0.002910181, 0.002953741], False, 3, [1, 1, 1, 1, 1, 1, 1, 1, 1, 1, 1, 1, 1, 1, 1, 1, 1, 1, 1, 1, 1, 1, 1, 1, 1, 1, 1], False), False)  # 23
sketch2.addGeometry(Part.BSplineCurve([Vector(13.277931, -3.401398, 0), Vector(13.373751, -3.401446, 0), Vector(13.561652, -3.40154, 0), Vector(13.837428, -3.400866, 0), Vector(14.101516, -3.39933, 0), Vector(14.353451, -3.397788, 0), Vector(14.593479, -3.397043, 0), Vector(14.821561, -3.393325, 0), Vector(15.03776, -3.392139, 0), Vector(15.242008, -3.388085, 0), Vector(15.434116, -3.384657, 0), Vector(15.614314, -3.381357, 0), Vector(15.782584, -3.377087, 0), Vector(15.938948, -3.37243, 0), Vector(16.083338, -3.3662, 0), Vector(16.215917, -3.362137, 0), Vector(16.336475, -3.355399, 0), Vector(16.412882, -3.350932, 0), Vector(16.449105, -3.348814, 0)], [4, 1, 1, 1, 1, 1, 1, 1, 1, 1, 1, 1, 1, 1, 1, 1, 4], [0, 0.00028746, 0.000563703, 0.000827328, 0.001079736, 0.001319524, 0.001547406, 0.001764063, 0.001968119, 0.002160258, 0.002340481, 0.002508803, 0.00266523, 0.00280977, 0.002942373, 0.003063131, 0.003171987], False, 3, [1, 1, 1, 1, 1, 1, 1, 1, 1, 1, 1, 1, 1, 1, 1, 1, 1, 1, 1], False), False)  # 24
sketch2.addGeometry(Part.LineSegment(Vector(11.936685, -3.042423, 0), Vector(14.345038, -3.042423, 0)), False)  # 25
sketch2.addGeometry(Part.BSplineCurve([Vector(17.680275, -2.461193, 0), Vector(17.679242, -2.475644, 0), Vector(17.677133, -2.505146, 0), Vector(17.657373, -2.547696, 0), Vector(17.628348, -2.58952, 0), Vector(17.586534, -2.629592, 0), Vector(17.533005, -2.667643, 0), Vector(17.469245, -2.706326, 0), Vector(17.393448, -2.743155, 0), Vector(17.307307, -2.779191, 0), Vector(17.211428, -2.813076, 0), Vector(17.107675, -2.845452, 0), Vector(16.996472, -2.874548, 0), Vector(16.877874, -2.90122, 0), Vector(16.75211, -2.925692, 0), Vector(16.618591, -2.947331, 0), Vector(16.477848, -2.966314, 0), Vector(16.355195, -2.978971, 0), Vector(16.251492, -2.989876, 0), Vector(16.166521, -2.995264, 0), Vector(16.07572, -3.003151, 0), Vector(15.97865, -3.00806, 0), Vector(15.875618, -3.01403, 0), Vector(15.766465, -3.018835, 0), Vector(15.65123, -3.022818, 0), Vector(15.530185, -3.027306, 0), Vector(15.403031, -3.030488, 0), Vector(15.26983, -3.034268, 0), Vector(15.130535, -3.036947, 0), Vector(14.985168, -3.039127, 0), Vector(14.83372, -3.040263, 0), Vector(14.676205, -3.041909, 0), Vector(14.512607, -3.04256, 0), Vector(14.401596, -3.042469, 0), Vector(14.345038, -3.042423, 0)], [4, 1, 1, 1, 1, 1, 1, 1, 1, 1, 1, 1, 1, 1, 1, 1, 1, 1, 1, 1, 1, 1, 1, 1, 1, 1, 1, 1, 1, 1, 1, 1, 4], [0, 0.000043135, 0.000088061, 0.000138435, 0.00019545, 0.000260658, 0.000335208, 0.000418927, 0.000513201, 0.000615214, 0.000723876, 0.000839179, 0.000959943, 0.001088508, 0.001223483, 0.001365674, 0.001514487, 0.00159339, 0.00167846, 0.001769876, 0.001866793, 0.00197001, 0.002079495, 0.002194556, 0.002315923, 0.002442875, 0.002576134, 0.002715685, 0.002860833, 0.003012282, 0.00317004, 0.003333403, 0.003503075], False, 3, [1, 1, 1, 1, 1, 1, 1, 1, 1, 1, 1, 1, 1, 1, 1, 1, 1, 1, 1, 1, 1, 1, 1, 1, 1, 1, 1, 1, 1, 1, 1, 1, 1, 1, 1], False), False)  # 26
sketch2.addGeometry(Part.BSplineCurve([Vector(14.243376, -1.868044, 0), Vector(14.300634, -1.867992, 0), Vector(14.413282, -1.867888, 0), Vector(14.579449, -1.868637, 0), Vector(14.739775, -1.869928, 0), Vector(14.894016, -1.872314, 0), Vector(15.04243, -1.874069, 0), Vector(15.184979, -1.87727, 0), Vector(15.32196, -1.879458, 0), Vector(15.452809, -1.884228, 0), Vector(15.577866, -1.888037, 0), Vector(15.696803, -1.893247, 0), Vector(15.810173, -1.897912, 0), Vector(15.917683, -1.903536, 0), Vector(16.01936, -1.909717, 0), Vector(16.114913, -1.917001, 0), Vector(16.2047, -1.923737, 0), Vector(16.315315, -1.933908, 0), Vector(16.445767, -1.948675, 0), Vector(16.595016, -1.967794, 0), Vector(16.735441, -1.99053, 0), Vector(16.867202, -2.014628, 0), Vector(16.990233, -2.041947, 0), Vector(17.104527, -2.072144, 0), Vector(17.210344, -2.104119, 0), Vector(17.307076, -2.138255, 0), Vector(17.393669, -2.17412, 0), Vector(17.469033, -2.212028, 0), Vector(17.533246, -2.250419, 0), Vector(17.586575, -2.289319, 0), Vector(17.628374, -2.330079, 0), Vector(17.657616, -2.372754, 0), Vector(17.677027, -2.416385, 0), Vector(17.679212, -2.446524, 0), Vector(17.680275, -2.461193, 0)], [4, 1, 1, 1, 1, 1, 1, 1, 1, 1, 1, 1, 1, 1, 1, 1, 1, 1, 1, 1, 1, 1, 1, 1, 1, 1, 1, 1, 1, 1, 1, 1, 4], [0, 0.000171775, 0.000337942, 0.000498505, 0.000652766, 0.000800718, 0.000943774, 0.001080522, 0.001211699, 0.00133657, 0.001455861, 0.001568849, 0.001676967, 0.001778825, 0.001874435, 0.001964452, 0.00204894, 0.002207663, 0.002358287, 0.002500294, 0.00263437, 0.002760076, 0.002878269, 0.002988942, 0.003091615, 0.003185889, 0.003269921, 0.003344471, 0.003410097, 0.003467606, 0.003518557, 0.003564777, 0.003608607], False, 3, [1, 1, 1, 1, 1, 1, 1, 1, 1, 1, 1, 1, 1, 1, 1, 1, 1, 1, 1, 1, 1, 1, 1, 1, 1, 1, 1, 1, 1, 1, 1, 1, 1, 1, 1], False), False)  # 27
sketch2.addGeometry(Part.LineSegment(Vector(14.243376, -1.868044, 0), Vector(11.936685, -1.875757, 0)), False)  # 28
sketch2.addGeometry(Part.LineSegment(Vector(11.936685, -1.875757, 0), Vector(11.936685, -3.042423, 0)), False)  # 29
sketch2.addConstraint([
    Sketcher.Constraint("Block", 8),
    Sketcher.Constraint("Block", 9),
    Sketcher.Constraint("Block", 10),
    Sketcher.Constraint("Block", 11),
    Sketcher.Constraint("Block", 12),
    Sketcher.Constraint("Block", 13),
    Sketcher.Constraint("Block", 14),
    Sketcher.Constraint("Block", 15),
    Sketcher.Constraint("Block", 21),
    Sketcher.Constraint("Block", 22),
    Sketcher.Constraint("Block", 23),
    Sketcher.Constraint("Block", 24),
    Sketcher.Constraint("Block", 26),
    Sketcher.Constraint("Block", 27),
    Sketcher.Constraint("Coincident", 16, 2, 17, 1),
    Sketcher.Constraint("Coincident", 17, 2, 18, 1),
    Sketcher.Constraint("Coincident", 18, 2, 19, 1),
    Sketcher.Constraint("Coincident", 19, 2, 20, 1),
    Sketcher.Constraint("Coincident", 20, 2, 21, 2),
    Sketcher.Constraint("Coincident", 24, 1, 16, 1),
    Sketcher.Constraint("Coincident", 25, 2, 26, 2),
    Sketcher.Constraint("Coincident", 27, 1, 28, 1),
    Sketcher.Constraint("Coincident", 28, 2, 29, 1),
    Sketcher.Constraint("Coincident", 29, 2, 25, 1),
    Sketcher.Constraint("Vertical", 0),
    Sketcher.Constraint("Horizontal", 1),
    Sketcher.Constraint("Vertical", 2),
    Sketcher.Constraint("Horizontal", 3),
    Sketcher.Constraint("Vertical", 4),
    Sketcher.Constraint("Horizontal", 5),
    Sketcher.Constraint("Vertical", 6),
    Sketcher.Constraint("Horizontal", 7),
    Sketcher.Constraint("Horizontal", 16),
    Sketcher.Constraint("Vertical", 17),
    Sketcher.Constraint("Horizontal", 18),
    Sketcher.Constraint("Vertical", 19),
    Sketcher.Constraint("Horizontal", 20),
    Sketcher.Constraint("Horizontal", 25),
    Sketcher.Constraint("Vertical", 29),
    Sketcher.Constraint("Horizontal", 1, 2, 4, 2),
    Sketcher.Constraint("Horizontal", 7, 2, 16, 2),
    Sketcher.Constraint("Horizontal", 3, 2, 17, 2),
    Sketcher.Constraint("Horizontal", 5, 2, 25, 2),
    Sketcher.Constraint("Vertical", 19, 2, 28, 2),
    Sketcher.Constraint("Equal", 1, 5),
    Sketcher.Constraint("Equal", 3, 18),
    Sketcher.Constraint("DistanceY", 17, 1, 17, 2, Q("3.5 mm")),
    Sketcher.Constraint("DistanceX", 16, 2, 16, 1, Q("2.732272 mm")),
    Sketcher.Constraint("DistanceX", 1, 1, 1, 2, Q("3.096154 mm")),
    Sketcher.Constraint("DistanceX", 3, 1, 3, 2, Q("1.391026 mm")),
    Sketcher.Constraint("DistanceY", 29, 2, 29, 1, Q("1.166667 mm")),
    Sketcher.Constraint("DistanceX", 0, 2, -1, 1, Q("15.659469 mm")),
])
pocket1 = doc.addObject("PartDesign::Pocket", "Pocket")
body.addObject(pocket1)
pocket1.Profile = sketch2
pocket1.Length = 5
pocket1.Reversed = True

doc.recompute()
